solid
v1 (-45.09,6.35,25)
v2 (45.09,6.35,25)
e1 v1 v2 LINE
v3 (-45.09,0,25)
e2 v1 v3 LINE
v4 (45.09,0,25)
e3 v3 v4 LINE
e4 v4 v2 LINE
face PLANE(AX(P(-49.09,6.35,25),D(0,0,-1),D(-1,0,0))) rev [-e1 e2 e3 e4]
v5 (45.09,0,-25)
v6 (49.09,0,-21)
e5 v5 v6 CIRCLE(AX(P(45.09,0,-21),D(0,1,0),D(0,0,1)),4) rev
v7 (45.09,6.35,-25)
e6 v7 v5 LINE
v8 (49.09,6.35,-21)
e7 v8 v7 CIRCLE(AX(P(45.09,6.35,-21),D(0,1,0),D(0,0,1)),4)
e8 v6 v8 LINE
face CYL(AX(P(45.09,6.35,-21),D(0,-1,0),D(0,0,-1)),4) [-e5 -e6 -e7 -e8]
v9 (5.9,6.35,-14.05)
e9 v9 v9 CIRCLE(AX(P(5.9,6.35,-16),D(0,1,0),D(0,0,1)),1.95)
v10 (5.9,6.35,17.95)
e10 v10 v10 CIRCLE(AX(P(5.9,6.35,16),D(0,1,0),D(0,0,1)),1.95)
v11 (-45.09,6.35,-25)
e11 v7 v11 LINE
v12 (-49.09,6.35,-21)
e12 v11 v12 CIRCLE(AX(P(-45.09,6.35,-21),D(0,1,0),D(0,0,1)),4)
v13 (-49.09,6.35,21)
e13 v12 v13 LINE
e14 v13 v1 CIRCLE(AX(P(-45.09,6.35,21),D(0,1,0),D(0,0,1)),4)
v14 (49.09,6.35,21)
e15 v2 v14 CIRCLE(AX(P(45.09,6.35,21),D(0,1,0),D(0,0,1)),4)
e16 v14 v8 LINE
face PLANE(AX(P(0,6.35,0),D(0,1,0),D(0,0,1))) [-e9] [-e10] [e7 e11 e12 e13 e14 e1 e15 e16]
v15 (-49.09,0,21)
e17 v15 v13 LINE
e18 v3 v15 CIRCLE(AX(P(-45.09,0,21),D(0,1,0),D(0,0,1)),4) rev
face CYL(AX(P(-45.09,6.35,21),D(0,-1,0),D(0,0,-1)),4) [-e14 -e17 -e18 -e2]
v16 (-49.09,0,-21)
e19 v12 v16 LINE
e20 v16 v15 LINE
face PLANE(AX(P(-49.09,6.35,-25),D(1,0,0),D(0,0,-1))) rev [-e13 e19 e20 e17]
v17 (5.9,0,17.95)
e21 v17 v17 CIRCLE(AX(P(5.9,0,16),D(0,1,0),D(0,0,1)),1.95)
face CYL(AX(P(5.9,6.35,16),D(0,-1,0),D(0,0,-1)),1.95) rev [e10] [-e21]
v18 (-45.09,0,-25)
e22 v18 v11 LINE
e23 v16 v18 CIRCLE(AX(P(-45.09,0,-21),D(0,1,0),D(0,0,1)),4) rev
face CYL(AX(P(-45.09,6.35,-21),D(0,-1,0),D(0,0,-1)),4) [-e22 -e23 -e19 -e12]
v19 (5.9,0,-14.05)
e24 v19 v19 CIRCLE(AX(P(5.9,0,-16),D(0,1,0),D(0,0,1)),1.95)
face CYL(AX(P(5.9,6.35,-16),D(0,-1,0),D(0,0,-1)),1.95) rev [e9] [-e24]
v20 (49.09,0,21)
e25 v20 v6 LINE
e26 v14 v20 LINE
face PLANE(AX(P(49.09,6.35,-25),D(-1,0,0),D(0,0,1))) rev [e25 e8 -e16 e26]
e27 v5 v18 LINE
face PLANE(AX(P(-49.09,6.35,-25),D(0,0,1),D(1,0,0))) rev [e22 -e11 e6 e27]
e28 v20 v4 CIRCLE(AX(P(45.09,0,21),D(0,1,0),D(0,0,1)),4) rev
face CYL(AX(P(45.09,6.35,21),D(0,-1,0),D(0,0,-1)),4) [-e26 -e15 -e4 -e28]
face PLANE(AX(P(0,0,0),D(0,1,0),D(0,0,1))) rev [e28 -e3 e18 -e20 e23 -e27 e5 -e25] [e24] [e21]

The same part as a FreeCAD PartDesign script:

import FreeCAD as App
import Part
import Sketcher
from FreeCAD import Vector
Q = App.Units.Quantity


def edges_at(feature, points):
    """Names of the edges that pass closest to the given points."""
    edges = feature.Shape.Edges
    near = lambda p: min(range(len(edges)), key=lambda i: edges[i].distToShape(Part.Vertex(*p))[0])
    return sorted({f"Edge{near(p) + 1}" for p in points})

doc = App.newDocument("Part")
body = doc.addObject("PartDesign::Body", "Body")

# Sketch on XZ plane
sketch1 = body.newObject("Sketcher::SketchObject", "Sketch")
sketch1.AttachmentSupport = (doc.getObject("XZ_Plane"), [""])
sketch1.MapMode = "FlatFace"
sketch1.addGeometry([
    Part.LineSegment(Vector(-49.09, -25, 0), Vector(-49.09, 25, 0)),  # 0
    Part.LineSegment(Vector(-49.09, 25, 0), Vector(49.09, 25, 0)),  # 1
    Part.LineSegment(Vector(49.09, 25, 0), Vector(49.09, -25, 0)),  # 2
    Part.LineSegment(Vector(49.09, -25, 0), Vector(-49.09, -25, 0)),  # 3
    Part.Circle(Vector(5.9, 16, 0), Vector(0, 0, 1), 1.95),  # 4
    Part.Circle(Vector(5.9, -16, 0), Vector(0, 0, 1), 1.95),  # 5
], False)
sketch1.addConstraint([
    Sketcher.Constraint("Coincident", 0, 2, 1, 1),
    Sketcher.Constraint("Coincident", 1, 2, 2, 1),
    Sketcher.Constraint("Coincident", 2, 2, 3, 1),
    Sketcher.Constraint("Coincident", 3, 2, 0, 1),
    Sketcher.Constraint("Vertical", 0),
    Sketcher.Constraint("Horizontal", 1),
    Sketcher.Constraint("Vertical", 2),
    Sketcher.Constraint("Horizontal", 3),
    Sketcher.Constraint("Equal", 4, 5),
    Sketcher.Constraint("Symmetric", 0, 2, 2, 2, -1, 1),
    Sketcher.Constraint("Symmetric", 4, 3, 5, 3, -1),
    Sketcher.Constraint("Diameter", 4, Q("3.9 mm")),
    Sketcher.Constraint("DistanceY", 0, 1, 0, 2, Q("50 mm")),
    Sketcher.Constraint("DistanceY", -1, 1, 4, 3, Q("16 mm")),
    Sketcher.Constraint("DistanceX", 1, 1, 1, 2, Q("98.18 mm")),
    Sketcher.Constraint("DistanceX", -1, 1, 4, 3, Q("5.9 mm")),
])
pad1 = body.newObject("PartDesign::Pad", "Pad")
pad1.Profile = sketch1
pad1.Length = 6.35
pad1.Reversed = True
doc.recompute()

fillet = body.newObject("PartDesign::Fillet", "Fillet")
fillet.Base = (pad1, edges_at(pad1, [
    (49.09, 3.175, 25),
    (-49.09, 3.175, 25),
    (-49.09, 3.175, -25),
    (49.09, 3.175, -25),
]))
fillet.Radius = 4

doc.recompute()
